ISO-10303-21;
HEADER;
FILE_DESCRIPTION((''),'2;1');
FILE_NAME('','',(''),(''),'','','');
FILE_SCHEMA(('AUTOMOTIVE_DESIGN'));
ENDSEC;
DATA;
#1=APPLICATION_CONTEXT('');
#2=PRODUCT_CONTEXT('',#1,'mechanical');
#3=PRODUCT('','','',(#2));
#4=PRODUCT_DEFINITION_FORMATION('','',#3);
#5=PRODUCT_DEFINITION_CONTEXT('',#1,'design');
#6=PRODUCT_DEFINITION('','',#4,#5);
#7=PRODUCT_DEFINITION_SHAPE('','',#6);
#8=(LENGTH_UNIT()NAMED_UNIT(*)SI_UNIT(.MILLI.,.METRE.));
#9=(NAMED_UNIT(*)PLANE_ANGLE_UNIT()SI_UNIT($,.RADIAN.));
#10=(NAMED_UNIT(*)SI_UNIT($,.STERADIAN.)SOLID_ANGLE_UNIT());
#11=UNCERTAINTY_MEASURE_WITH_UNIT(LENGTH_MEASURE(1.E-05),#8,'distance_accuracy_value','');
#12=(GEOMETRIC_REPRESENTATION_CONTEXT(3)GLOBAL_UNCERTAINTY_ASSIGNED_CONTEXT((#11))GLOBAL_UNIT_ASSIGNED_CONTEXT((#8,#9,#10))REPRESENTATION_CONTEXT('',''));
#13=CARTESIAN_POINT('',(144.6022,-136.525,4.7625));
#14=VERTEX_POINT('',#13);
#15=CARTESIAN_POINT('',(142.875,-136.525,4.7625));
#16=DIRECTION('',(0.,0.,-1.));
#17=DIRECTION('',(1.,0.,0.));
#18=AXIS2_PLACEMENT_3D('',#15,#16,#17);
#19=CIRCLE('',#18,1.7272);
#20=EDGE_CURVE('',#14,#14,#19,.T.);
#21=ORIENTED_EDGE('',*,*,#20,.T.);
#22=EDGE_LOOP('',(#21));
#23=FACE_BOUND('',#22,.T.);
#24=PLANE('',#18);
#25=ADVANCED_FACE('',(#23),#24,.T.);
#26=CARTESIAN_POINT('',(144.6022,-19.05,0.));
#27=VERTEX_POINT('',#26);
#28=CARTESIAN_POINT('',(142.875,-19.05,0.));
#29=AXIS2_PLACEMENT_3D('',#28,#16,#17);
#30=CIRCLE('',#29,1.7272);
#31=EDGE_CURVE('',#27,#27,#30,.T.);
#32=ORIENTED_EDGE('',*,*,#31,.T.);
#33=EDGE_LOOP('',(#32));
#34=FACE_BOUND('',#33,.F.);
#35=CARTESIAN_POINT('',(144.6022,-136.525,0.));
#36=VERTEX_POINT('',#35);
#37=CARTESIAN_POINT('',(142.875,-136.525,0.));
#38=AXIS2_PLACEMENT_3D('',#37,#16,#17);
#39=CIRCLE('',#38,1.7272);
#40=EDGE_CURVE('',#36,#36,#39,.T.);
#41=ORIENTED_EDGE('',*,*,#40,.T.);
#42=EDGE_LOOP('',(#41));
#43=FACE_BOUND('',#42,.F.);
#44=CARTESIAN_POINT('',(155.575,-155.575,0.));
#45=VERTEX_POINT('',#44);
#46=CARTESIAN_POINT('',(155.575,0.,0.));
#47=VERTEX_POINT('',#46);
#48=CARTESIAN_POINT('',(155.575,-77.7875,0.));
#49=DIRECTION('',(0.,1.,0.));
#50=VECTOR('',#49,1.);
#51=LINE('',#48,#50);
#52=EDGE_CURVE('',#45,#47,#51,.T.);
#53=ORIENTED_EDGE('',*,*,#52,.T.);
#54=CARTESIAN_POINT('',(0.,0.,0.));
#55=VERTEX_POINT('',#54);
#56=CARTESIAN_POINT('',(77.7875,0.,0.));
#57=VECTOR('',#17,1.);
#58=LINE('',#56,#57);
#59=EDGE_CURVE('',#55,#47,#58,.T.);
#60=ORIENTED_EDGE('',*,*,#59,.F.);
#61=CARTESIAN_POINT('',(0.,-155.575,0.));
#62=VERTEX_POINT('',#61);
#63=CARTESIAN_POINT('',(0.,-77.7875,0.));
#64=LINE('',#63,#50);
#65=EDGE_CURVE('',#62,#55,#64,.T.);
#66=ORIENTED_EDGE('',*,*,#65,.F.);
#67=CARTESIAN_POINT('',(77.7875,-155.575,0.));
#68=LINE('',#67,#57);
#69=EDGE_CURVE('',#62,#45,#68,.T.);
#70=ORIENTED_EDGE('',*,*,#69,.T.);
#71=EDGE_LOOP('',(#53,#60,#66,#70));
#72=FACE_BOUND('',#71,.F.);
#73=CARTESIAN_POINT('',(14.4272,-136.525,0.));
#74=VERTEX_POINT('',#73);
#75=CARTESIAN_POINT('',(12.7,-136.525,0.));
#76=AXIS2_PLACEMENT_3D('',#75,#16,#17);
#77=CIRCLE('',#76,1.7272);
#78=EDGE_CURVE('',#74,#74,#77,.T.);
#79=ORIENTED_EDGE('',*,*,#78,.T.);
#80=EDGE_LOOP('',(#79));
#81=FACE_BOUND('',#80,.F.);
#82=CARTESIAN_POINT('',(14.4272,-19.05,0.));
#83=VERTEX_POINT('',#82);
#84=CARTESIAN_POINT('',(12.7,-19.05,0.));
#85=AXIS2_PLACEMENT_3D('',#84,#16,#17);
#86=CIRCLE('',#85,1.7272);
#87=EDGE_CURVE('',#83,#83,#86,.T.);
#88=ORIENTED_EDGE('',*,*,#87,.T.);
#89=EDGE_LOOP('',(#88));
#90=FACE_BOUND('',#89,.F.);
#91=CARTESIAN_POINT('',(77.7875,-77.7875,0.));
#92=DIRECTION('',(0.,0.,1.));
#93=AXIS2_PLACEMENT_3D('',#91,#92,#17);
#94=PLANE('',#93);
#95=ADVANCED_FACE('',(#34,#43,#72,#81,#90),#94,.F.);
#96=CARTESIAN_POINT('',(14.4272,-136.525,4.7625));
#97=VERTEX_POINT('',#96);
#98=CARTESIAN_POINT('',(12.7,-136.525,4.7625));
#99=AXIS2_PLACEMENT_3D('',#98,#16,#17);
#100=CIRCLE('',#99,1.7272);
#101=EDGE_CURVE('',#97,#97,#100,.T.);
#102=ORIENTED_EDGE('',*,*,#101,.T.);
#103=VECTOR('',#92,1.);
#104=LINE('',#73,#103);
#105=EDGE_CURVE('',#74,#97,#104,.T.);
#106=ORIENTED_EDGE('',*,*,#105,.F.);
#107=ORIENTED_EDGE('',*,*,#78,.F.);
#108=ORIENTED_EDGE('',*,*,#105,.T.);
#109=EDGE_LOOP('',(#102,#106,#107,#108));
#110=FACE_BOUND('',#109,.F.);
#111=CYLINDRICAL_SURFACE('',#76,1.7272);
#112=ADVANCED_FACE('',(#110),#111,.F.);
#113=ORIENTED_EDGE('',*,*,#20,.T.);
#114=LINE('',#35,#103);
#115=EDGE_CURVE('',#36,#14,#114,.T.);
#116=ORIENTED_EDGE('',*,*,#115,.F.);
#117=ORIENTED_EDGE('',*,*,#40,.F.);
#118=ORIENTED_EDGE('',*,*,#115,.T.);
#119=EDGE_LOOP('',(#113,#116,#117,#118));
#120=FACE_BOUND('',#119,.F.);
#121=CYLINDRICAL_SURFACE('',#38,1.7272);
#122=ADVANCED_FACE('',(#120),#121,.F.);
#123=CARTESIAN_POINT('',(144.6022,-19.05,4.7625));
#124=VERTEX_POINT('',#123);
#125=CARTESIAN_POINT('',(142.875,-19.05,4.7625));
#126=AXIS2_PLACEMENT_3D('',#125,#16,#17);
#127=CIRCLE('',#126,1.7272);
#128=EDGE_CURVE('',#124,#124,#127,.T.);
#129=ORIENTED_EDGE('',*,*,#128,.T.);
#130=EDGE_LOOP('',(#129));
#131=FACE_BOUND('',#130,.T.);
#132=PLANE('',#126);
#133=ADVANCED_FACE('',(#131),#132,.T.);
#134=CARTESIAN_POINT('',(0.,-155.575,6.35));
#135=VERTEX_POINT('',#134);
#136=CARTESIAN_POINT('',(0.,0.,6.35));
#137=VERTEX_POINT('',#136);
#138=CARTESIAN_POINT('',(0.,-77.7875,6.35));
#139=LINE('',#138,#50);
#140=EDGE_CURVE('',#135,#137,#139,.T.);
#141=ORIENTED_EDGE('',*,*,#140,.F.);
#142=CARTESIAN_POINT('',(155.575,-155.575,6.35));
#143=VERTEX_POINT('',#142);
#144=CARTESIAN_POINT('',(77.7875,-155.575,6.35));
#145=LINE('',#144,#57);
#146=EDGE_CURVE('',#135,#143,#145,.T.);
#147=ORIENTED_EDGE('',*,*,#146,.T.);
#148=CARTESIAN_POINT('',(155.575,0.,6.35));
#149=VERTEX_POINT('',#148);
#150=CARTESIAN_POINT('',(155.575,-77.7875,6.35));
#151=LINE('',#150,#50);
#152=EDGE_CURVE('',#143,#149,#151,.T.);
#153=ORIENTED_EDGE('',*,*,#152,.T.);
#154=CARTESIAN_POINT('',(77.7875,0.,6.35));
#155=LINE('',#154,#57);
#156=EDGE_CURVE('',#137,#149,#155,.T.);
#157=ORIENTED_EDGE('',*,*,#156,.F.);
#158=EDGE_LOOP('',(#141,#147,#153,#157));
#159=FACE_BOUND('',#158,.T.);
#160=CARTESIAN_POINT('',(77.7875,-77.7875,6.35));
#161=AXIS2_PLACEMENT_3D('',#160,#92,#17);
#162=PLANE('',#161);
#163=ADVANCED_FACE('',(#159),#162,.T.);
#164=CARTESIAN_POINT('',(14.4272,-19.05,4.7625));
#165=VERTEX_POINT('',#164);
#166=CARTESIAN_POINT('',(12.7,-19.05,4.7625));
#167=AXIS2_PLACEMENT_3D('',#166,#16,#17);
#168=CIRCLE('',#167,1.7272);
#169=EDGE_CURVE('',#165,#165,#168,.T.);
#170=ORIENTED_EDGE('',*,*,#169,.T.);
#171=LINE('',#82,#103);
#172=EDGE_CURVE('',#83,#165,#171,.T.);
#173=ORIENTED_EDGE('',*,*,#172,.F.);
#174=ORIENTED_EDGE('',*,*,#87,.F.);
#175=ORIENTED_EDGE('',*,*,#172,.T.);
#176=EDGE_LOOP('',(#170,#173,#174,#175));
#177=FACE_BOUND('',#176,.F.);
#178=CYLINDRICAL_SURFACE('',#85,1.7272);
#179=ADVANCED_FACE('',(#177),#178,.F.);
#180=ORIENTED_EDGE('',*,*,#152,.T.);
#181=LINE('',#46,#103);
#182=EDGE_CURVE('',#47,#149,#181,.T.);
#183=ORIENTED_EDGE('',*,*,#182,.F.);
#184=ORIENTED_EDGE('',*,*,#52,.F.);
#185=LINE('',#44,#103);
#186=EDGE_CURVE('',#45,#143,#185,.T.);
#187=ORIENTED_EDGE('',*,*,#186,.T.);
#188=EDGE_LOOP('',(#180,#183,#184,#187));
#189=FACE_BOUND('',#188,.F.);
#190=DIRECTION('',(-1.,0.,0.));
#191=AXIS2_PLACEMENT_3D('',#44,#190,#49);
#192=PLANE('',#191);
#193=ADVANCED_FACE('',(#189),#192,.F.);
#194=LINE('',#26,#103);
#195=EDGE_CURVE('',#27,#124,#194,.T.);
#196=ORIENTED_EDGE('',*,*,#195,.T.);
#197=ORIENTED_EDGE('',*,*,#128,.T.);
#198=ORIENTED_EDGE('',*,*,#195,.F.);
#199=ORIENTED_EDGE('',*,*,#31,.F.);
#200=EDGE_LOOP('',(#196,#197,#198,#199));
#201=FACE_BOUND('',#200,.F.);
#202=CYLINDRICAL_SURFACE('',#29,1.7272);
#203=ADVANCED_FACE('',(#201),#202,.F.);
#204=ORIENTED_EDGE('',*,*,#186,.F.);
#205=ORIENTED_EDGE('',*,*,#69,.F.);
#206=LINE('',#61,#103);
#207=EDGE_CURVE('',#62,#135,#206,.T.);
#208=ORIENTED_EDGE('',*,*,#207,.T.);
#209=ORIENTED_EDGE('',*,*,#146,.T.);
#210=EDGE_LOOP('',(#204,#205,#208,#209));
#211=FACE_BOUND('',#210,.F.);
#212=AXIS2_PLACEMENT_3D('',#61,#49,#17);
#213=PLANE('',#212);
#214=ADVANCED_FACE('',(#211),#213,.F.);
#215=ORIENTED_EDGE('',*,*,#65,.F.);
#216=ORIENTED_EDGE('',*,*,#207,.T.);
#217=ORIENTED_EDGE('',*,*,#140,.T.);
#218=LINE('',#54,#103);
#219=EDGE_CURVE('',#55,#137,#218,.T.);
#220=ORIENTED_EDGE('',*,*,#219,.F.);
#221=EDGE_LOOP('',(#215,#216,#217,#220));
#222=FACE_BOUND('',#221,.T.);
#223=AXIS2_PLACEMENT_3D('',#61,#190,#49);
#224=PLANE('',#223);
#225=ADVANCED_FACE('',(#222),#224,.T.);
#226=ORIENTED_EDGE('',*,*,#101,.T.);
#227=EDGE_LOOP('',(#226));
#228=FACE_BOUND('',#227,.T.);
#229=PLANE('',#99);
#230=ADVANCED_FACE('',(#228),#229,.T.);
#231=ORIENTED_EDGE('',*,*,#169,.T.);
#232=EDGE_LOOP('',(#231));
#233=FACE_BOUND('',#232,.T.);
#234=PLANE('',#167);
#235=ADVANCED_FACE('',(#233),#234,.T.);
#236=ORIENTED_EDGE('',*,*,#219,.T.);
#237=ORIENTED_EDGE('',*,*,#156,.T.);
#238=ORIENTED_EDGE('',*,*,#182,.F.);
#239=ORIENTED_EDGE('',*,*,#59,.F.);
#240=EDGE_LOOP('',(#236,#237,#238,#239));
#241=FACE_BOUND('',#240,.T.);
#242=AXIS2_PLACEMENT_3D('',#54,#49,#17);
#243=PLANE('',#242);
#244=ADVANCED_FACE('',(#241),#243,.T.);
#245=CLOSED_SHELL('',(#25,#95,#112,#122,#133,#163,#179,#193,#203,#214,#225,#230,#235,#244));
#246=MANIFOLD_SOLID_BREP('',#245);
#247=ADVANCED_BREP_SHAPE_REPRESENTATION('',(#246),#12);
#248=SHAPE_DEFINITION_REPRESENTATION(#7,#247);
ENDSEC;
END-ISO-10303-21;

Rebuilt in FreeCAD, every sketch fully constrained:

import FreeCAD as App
import Part
import Sketcher

V = App.Vector
Q = App.Units.Quantity


def add_polygon(sketch, points):
    """Adds a closed chain of lines whose ends are joined by coincident constraints."""
    first, n = sketch.GeometryCount, len(points)
    for a, b in zip(points, points[1:] + points[:1]):
        sketch.addGeometry(Part.LineSegment(App.Vector(*a, 0), App.Vector(*b, 0)), False)
    for i in range(n):
        sketch.addConstraint(Sketcher.Constraint("Coincident", first + i, 2, first + (i + 1) % n, 1))

doc = App.newDocument("Part")
body = doc.addObject("PartDesign::Body", "Body")

# Sketch on XY plane
sketch1 = body.newObject("Sketcher::SketchObject", "Sketch")
sketch1.AttachmentSupport = (doc.getObject("XY_Plane"), [""])
sketch1.MapMode = "FlatFace"
add_polygon(sketch1, [(0, 0), (0, -156), (156, -156), (156, 0)])  # lines 0-3
sketch1.addConstraint([
    Sketcher.Constraint("Vertical", 0),
    Sketcher.Constraint("Horizontal", 1),
    Sketcher.Constraint("Vertical", 2),
    Sketcher.Constraint("Horizontal", 3),
    Sketcher.Constraint("Coincident", 3, 2, -1, 1),
    Sketcher.Constraint("Equal", 3, 0),
    Sketcher.Constraint("DistanceX", 1, 1, 1, 2, Q("6.125 in")),
])
pad1 = body.newObject("PartDesign::Pad", "Pad")
pad1.Profile = sketch1
pad1.Length = Q("0.25 in")

# Sketch on XY plane
sketch2 = body.newObject("Sketcher::SketchObject", "Sketch001")
sketch2.AttachmentSupport = (doc.getObject("XY_Plane"), [""])
sketch2.MapMode = "FlatFace"
sketch2.addGeometry([
    Part.Circle(V(142.9, -136.5, 0), V(0, 0, 1), 1.7),
    Part.Circle(V(142.9, -19.1, 0), V(0, 0, 1), 1.7),
    Part.Circle(V(12.7, -19.1, 0), V(0, 0, 1), 1.7),
    Part.Circle(V(12.7, -136.5, 0), V(0, 0, 1), 1.7),
], False)
sketch2.addConstraint([
    Sketcher.Constraint("Equal", 0, 1),
    Sketcher.Constraint("Equal", 1, 2),
    Sketcher.Constraint("Equal", 2, 3),
    Sketcher.Constraint("Horizontal", 1, 3, 2, 3),
    Sketcher.Constraint("Horizontal", 0, 3, 3, 3),
    Sketcher.Constraint("Vertical", 0, 3, 1, 3),
    Sketcher.Constraint("Vertical", 2, 3, 3, 3),
    Sketcher.Constraint("Diameter", 0, Q("0.136 in")),
    Sketcher.Constraint("DistanceX", -1, 1, 2, 3, Q("0.5 in")),
    Sketcher.Constraint("DistanceY", 1, 3, -1, 1, Q("0.75 in")),
    Sketcher.Constraint("DistanceX", -1, 1, 0, 3, Q("5.625 in")),
    Sketcher.Constraint("DistanceY", 0, 3, -1, 1, Q("5.375 in")),
])
pocket1 = body.newObject("PartDesign::Pocket", "Pocket")
pocket1.Profile = sketch2
pocket1.Length = Q("0.1875 in")
pocket1.Reversed = True

doc.recompute()
